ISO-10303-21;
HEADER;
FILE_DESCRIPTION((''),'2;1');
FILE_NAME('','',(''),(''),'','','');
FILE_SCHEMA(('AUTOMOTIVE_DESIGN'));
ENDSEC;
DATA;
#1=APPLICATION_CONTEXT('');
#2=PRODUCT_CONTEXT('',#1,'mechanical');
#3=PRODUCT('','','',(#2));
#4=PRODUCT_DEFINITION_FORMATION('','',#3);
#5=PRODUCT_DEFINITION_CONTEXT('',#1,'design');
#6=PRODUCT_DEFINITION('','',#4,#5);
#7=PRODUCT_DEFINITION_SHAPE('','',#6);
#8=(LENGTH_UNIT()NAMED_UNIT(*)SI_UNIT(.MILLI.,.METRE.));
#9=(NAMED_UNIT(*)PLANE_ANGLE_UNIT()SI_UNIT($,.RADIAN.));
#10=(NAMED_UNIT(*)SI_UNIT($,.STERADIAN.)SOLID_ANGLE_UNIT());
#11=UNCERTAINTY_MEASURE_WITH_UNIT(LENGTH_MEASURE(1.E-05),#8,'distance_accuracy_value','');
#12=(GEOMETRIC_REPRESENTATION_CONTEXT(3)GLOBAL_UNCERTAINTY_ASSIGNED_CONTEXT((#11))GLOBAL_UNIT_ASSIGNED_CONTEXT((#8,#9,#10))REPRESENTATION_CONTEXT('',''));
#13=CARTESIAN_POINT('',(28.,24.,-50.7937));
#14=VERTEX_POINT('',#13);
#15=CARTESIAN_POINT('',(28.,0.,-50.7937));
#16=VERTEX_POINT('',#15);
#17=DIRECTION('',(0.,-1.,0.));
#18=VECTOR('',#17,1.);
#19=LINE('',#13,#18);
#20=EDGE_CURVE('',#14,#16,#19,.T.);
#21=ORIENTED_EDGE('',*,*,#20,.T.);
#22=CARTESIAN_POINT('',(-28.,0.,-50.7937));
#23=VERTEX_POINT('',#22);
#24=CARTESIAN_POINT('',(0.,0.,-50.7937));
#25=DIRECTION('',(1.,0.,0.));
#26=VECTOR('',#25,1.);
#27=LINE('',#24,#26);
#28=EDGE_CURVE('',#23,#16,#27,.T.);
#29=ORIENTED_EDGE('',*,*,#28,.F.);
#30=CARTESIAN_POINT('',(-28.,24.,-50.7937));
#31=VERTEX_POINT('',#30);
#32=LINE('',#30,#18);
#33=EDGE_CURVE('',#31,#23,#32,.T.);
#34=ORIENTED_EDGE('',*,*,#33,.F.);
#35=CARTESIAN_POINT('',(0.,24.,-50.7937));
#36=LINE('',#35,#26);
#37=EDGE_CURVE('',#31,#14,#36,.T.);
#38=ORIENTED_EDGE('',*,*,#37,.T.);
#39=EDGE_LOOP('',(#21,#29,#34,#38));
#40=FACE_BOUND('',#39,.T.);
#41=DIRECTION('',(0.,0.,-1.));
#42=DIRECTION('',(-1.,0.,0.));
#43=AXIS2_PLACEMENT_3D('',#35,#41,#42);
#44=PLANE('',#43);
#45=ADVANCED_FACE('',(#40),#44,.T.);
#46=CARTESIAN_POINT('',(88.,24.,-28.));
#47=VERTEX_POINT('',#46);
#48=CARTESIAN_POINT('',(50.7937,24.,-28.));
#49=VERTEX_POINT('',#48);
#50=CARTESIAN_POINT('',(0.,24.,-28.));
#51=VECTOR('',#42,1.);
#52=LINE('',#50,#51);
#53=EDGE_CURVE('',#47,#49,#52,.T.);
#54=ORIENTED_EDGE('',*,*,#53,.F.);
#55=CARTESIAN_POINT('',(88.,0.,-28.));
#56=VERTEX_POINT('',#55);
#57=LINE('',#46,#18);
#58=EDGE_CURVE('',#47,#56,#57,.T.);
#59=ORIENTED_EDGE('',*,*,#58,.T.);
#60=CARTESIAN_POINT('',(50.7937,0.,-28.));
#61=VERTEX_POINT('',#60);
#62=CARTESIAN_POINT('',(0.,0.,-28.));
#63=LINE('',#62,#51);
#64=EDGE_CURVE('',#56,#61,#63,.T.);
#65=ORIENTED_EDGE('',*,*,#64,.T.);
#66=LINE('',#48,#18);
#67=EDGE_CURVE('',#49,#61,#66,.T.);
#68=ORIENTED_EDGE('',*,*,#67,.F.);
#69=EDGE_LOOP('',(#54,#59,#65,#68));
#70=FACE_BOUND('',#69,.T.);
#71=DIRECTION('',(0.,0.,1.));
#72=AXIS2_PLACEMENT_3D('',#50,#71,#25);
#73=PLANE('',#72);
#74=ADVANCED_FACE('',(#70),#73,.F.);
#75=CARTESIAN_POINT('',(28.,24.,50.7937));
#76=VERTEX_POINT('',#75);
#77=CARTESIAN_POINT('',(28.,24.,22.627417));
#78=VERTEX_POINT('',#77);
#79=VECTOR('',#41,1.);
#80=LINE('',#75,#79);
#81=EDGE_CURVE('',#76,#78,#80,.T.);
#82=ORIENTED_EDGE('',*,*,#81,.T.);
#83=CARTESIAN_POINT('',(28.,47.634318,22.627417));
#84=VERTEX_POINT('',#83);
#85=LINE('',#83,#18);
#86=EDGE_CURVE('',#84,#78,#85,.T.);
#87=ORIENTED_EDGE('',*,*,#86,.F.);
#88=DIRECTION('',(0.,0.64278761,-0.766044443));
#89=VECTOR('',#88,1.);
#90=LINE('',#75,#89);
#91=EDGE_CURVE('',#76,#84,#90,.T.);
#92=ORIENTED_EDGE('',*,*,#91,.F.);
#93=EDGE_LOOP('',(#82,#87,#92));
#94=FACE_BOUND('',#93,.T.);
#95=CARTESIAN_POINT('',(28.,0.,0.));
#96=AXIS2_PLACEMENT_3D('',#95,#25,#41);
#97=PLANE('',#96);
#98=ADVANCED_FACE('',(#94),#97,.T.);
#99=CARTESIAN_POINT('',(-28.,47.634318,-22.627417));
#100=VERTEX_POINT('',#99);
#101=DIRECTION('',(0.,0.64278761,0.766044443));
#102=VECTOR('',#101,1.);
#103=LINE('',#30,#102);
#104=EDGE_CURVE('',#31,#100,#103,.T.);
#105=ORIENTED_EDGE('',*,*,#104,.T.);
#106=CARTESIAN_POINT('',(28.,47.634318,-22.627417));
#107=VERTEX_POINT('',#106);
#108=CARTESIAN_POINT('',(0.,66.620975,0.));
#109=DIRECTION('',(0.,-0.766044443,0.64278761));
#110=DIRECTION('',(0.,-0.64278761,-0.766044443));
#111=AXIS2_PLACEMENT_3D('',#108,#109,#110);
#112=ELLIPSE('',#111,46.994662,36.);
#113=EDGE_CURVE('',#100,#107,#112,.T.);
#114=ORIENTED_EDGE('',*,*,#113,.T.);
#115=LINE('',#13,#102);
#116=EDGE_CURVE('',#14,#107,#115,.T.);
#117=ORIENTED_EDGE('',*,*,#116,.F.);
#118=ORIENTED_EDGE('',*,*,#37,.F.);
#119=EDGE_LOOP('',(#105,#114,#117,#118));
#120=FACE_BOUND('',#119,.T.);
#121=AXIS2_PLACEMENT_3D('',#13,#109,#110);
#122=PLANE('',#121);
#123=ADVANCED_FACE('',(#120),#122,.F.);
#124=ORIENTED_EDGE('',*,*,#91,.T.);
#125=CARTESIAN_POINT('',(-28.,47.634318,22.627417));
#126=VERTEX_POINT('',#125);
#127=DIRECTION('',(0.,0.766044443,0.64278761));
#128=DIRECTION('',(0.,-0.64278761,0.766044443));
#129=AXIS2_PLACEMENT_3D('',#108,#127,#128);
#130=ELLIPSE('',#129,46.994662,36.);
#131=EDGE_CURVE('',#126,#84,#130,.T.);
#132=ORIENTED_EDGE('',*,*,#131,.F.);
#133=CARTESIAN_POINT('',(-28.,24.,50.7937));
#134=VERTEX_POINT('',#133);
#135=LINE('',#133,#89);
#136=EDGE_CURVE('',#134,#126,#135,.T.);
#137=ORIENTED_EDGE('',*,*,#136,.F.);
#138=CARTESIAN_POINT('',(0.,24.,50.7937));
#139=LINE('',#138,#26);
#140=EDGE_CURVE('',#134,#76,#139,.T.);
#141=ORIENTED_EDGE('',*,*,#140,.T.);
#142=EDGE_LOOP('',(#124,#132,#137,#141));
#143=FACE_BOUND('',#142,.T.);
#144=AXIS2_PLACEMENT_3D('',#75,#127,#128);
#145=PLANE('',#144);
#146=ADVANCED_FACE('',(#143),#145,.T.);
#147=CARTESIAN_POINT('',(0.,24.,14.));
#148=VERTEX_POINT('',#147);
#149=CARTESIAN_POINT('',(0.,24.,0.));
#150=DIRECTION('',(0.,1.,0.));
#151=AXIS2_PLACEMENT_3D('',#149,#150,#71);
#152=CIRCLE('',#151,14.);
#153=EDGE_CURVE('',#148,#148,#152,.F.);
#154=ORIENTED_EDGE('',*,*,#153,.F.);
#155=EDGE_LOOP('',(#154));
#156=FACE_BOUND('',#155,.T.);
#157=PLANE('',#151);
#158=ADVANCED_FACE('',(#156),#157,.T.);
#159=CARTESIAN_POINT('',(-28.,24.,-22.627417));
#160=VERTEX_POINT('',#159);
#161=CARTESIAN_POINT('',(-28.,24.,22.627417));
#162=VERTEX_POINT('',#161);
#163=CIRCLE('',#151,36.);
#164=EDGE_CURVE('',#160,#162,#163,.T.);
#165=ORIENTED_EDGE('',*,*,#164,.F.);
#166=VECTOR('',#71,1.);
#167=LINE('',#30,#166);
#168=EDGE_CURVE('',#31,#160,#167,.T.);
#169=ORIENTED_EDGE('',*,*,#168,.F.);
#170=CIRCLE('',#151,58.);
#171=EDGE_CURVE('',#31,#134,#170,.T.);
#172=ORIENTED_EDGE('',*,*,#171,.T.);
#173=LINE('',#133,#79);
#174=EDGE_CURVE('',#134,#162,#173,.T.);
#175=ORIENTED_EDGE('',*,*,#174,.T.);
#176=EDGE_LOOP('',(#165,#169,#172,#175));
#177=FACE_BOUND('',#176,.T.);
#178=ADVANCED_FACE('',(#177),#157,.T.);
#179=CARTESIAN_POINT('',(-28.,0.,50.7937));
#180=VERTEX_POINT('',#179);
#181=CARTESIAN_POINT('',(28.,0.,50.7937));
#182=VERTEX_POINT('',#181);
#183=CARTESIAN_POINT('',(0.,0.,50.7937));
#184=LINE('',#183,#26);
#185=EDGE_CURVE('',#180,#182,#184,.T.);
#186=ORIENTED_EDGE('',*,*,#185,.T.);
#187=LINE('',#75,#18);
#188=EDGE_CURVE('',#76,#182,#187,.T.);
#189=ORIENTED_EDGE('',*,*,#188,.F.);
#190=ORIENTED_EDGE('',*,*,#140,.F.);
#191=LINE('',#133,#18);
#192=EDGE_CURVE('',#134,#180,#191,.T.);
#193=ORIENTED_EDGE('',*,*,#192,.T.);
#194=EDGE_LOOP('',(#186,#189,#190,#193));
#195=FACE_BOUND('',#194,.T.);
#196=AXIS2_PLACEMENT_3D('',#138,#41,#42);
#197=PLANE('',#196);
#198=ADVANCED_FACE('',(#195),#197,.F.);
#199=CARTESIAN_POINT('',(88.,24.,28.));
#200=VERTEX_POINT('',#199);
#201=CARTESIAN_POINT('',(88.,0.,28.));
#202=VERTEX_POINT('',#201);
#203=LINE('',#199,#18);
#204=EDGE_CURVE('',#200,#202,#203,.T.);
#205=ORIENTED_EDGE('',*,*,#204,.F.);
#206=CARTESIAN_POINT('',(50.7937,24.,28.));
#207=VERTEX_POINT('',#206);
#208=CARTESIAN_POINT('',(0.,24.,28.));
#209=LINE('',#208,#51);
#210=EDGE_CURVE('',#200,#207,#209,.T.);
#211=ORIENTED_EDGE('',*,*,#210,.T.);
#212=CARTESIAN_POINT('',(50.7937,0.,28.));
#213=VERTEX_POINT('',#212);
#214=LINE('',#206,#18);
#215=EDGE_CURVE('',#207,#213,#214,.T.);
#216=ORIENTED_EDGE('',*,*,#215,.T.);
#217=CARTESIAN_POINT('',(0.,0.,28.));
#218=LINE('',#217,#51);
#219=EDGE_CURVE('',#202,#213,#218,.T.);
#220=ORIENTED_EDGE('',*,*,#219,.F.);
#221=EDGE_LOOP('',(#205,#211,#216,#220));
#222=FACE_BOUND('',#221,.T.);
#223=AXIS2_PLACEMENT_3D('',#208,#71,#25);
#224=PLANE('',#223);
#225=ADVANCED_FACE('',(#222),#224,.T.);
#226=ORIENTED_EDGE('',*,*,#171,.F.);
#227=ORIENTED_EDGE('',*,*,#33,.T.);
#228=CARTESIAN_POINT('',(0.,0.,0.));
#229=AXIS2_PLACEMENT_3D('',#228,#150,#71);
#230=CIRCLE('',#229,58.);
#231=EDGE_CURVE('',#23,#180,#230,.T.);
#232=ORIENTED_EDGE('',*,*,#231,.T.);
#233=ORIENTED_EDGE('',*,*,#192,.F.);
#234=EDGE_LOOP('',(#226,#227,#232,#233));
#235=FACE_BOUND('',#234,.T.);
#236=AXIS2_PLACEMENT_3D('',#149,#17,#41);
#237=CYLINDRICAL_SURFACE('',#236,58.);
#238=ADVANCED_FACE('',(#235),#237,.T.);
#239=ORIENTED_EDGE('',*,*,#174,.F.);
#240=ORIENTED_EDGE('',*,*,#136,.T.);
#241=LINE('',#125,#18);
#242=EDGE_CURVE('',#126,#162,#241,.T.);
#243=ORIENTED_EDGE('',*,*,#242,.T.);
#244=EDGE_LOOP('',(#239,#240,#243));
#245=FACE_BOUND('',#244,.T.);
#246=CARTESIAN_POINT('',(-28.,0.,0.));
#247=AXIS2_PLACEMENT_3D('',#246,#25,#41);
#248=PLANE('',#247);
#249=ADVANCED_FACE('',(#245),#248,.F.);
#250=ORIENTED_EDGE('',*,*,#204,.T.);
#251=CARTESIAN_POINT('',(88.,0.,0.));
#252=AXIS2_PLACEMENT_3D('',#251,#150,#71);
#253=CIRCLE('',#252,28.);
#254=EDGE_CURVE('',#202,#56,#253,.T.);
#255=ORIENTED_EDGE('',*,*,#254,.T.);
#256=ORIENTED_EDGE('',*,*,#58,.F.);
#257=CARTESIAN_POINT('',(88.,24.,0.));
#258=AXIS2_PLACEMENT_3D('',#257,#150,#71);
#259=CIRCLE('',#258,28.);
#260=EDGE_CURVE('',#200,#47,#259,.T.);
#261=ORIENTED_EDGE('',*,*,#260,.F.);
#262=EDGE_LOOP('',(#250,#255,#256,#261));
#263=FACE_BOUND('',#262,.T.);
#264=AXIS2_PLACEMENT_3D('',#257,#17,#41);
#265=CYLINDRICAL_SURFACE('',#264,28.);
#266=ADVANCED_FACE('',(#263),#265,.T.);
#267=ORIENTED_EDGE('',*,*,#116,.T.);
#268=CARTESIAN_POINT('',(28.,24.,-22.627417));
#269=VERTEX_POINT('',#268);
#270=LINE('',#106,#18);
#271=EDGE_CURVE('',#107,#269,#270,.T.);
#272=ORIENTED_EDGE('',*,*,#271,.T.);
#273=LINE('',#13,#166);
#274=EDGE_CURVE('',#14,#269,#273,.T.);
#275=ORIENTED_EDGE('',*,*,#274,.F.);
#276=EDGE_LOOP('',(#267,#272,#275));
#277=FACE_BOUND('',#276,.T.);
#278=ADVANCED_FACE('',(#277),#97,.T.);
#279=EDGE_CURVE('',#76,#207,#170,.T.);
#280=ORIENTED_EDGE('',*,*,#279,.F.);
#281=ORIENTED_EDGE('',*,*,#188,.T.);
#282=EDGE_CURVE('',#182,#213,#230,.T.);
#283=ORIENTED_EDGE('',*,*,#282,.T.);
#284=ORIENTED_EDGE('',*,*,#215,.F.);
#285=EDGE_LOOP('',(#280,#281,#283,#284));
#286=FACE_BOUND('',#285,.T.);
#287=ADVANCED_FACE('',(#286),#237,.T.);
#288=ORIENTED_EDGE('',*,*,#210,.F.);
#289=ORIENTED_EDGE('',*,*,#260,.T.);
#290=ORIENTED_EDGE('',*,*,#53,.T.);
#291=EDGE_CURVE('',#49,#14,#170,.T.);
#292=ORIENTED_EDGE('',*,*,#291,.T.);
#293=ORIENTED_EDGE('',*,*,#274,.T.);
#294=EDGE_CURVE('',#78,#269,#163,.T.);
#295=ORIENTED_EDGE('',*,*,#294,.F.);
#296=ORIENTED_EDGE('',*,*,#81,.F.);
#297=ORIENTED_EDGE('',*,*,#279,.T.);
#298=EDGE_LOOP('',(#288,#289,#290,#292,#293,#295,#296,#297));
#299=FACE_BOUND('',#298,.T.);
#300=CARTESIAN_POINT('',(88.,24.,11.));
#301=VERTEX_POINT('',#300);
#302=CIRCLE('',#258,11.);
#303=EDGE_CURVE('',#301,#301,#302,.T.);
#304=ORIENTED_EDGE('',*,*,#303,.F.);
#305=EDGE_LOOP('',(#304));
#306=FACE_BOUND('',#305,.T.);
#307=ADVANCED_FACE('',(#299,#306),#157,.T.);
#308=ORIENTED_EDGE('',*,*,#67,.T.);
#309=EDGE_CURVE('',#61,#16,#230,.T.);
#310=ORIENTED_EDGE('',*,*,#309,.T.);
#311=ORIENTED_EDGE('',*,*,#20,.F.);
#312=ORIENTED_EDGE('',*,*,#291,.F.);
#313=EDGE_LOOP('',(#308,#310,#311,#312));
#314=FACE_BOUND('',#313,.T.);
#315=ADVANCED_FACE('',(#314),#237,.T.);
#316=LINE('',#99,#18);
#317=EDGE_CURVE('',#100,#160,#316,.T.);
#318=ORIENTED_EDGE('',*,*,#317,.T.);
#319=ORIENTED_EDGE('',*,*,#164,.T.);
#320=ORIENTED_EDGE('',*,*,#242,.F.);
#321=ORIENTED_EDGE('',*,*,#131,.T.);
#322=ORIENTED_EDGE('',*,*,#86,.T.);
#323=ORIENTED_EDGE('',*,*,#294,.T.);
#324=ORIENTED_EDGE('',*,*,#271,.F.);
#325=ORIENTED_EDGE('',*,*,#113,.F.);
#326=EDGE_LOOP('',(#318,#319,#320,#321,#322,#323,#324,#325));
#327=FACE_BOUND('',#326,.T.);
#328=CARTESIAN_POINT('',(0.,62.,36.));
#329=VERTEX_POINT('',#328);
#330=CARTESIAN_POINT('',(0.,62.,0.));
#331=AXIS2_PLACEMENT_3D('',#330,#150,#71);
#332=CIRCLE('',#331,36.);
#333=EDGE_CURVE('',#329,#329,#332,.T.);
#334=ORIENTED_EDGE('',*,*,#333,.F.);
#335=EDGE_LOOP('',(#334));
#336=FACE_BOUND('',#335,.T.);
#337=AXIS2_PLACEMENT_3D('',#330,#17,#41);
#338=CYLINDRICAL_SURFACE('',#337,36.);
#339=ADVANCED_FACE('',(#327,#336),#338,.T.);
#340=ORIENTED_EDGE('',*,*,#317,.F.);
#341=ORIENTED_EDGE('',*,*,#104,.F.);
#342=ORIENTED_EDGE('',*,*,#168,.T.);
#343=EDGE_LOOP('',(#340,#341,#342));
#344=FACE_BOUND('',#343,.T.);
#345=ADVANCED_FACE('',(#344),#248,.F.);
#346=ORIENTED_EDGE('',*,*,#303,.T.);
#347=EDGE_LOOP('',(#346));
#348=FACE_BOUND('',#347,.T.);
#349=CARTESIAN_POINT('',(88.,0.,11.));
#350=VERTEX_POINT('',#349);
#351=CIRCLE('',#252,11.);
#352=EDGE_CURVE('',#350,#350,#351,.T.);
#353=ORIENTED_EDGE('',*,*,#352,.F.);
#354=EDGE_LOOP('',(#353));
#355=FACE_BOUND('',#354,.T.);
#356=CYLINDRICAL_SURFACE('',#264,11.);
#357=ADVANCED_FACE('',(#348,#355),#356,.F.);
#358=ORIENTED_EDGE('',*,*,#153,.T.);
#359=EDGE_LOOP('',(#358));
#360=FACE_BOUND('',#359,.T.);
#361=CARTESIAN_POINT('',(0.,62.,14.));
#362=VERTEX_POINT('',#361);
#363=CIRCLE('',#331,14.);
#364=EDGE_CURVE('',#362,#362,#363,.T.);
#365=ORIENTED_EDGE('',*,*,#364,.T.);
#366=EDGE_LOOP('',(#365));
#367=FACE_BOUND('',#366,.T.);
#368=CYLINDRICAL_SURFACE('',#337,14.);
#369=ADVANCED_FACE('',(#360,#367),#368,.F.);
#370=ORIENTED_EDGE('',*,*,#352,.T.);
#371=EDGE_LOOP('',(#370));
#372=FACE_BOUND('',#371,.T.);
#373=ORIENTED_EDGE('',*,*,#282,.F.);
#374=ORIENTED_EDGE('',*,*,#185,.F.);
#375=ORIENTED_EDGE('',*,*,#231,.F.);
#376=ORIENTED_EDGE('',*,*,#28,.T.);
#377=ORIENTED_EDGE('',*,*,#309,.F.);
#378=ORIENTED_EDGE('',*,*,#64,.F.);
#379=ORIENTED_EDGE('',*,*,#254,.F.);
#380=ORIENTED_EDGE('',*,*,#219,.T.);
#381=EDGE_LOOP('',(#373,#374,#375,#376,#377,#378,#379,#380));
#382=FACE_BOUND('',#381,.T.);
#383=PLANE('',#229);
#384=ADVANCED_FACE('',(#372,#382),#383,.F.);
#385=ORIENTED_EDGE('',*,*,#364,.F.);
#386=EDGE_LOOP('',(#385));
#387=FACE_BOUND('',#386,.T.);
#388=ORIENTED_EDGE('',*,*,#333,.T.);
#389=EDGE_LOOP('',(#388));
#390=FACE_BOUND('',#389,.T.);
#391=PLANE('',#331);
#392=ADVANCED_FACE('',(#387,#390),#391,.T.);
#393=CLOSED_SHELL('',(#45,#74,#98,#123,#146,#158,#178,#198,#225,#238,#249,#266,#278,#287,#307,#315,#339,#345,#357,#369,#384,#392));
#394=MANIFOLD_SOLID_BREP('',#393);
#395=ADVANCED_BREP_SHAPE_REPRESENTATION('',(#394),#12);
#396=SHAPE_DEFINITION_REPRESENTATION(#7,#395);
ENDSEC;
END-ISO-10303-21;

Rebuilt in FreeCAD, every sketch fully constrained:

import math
import FreeCAD as App
import Part
import Sketcher
from FreeCAD import Vector
Q = App.Units.Quantity


def add_polygon(sketch, points):
    """Adds a closed chain of lines whose ends are joined by coincident constraints."""
    first, n = sketch.GeometryCount, len(points)
    for a, b in zip(points, points[1:] + points[:1]):
        sketch.addGeometry(Part.LineSegment(App.Vector(*a, 0), App.Vector(*b, 0)), False)
    for i in range(n):
        sketch.addConstraint(Sketcher.Constraint("Coincident", first + i, 2, first + (i + 1) % n, 1))

doc = App.newDocument("Part")
body = doc.addObject("PartDesign::Body", "Body")

# Sketch on XZ plane
sketch1 = doc.addObject("Sketcher::SketchObject", "Sketch")
body.addObject(sketch1)
sketch1.AttachmentSupport = (doc.XZ_Plane, [""])
sketch1.MapMode = "FlatFace"
sketch1.addGeometry([
    Part.LineSegment(Vector(-28, 51, 0), Vector(28, 51, 0)),  # 0
    Part.ArcOfCircle(Part.Circle(Vector(0, 0, 0), Vector(0, 0, 1), 58), math.radians(29), math.radians(61)),  # 1
    Part.LineSegment(Vector(51, 28, 0), Vector(88, 28, 0)),  # 2
    Part.ArcOfCircle(Part.Circle(Vector(88, 0, 0), Vector(0, 0, 1), 28), math.radians(-90), math.radians(90)),  # 3
    Part.LineSegment(Vector(88, -28, 0), Vector(51, -28, 0)),  # 4
    Part.ArcOfCircle(Part.Circle(Vector(0, 0, 0), Vector(0, 0, 1), 58), math.radians(-61), math.radians(-29)),  # 5
    Part.LineSegment(Vector(28, -51, 0), Vector(-28, -51, 0)),  # 6
    Part.ArcOfCircle(Part.Circle(Vector(0, 0, 0), Vector(0, 0, 1), 58), math.radians(119), math.radians(241)),  # 7
    Part.Circle(Vector(88, 0, 0), Vector(0, 0, 1), 11),  # 8
], False)
sketch1.addConstraint([
    Sketcher.Constraint("Coincident", 0, 2, 1, 2),
    Sketcher.Constraint("Coincident", 1, 1, 2, 1),
    Sketcher.Constraint("Tangent", 2, 2, 3, 2),
    Sketcher.Constraint("Tangent", 3, 1, 4, 1),
    Sketcher.Constraint("Coincident", 4, 2, 5, 2),
    Sketcher.Constraint("Coincident", 5, 1, 6, 1),
    Sketcher.Constraint("Coincident", 6, 2, 7, 2),
    Sketcher.Constraint("Coincident", 7, 1, 0, 1),
    Sketcher.Constraint("Horizontal", 0),
    Sketcher.Constraint("Horizontal", 2),
    Sketcher.Constraint("Horizontal", 4),
    Sketcher.Constraint("Horizontal", 6),
    Sketcher.Constraint("Coincident", 1, 3, -1, 1),
    Sketcher.Constraint("Coincident", 5, 3, -1, 1),
    Sketcher.Constraint("Coincident", 7, 3, -1, 1),
    Sketcher.Constraint("Coincident", 8, 3, 3, 3),
    Sketcher.Constraint("Equal", 1, 5),
    Sketcher.Constraint("Equal", 5, 7),
    Sketcher.Constraint("PointOnObject", 3, 3, -1),
    Sketcher.Constraint("Vertical", 0, 2, 5, 1),
    Sketcher.Constraint("Diameter", 8, 22.0),
    Sketcher.Constraint("Radius", 1, 58.0),
    Sketcher.Constraint("Radius", 3, 28.0),
    Sketcher.Constraint("DistanceX", 0, 1, 0, 2, 56.0),
    Sketcher.Constraint("DistanceX", -1, 1, 3, 3, 88.0),
])
pad1 = doc.addObject("PartDesign::Pad", "Pad")
body.addObject(pad1)
pad1.Profile = sketch1
pad1.Length = 24
pad1.Reversed = True

# Sketch on XZ plane
sketch2 = doc.addObject("Sketcher::SketchObject", "Sketch001")
body.addObject(sketch2)
sketch2.AttachmentSupport = (doc.XZ_Plane, [""])
sketch2.MapMode = "FlatFace"
sketch2.AttachmentOffset = App.Placement(Vector(0, 0, -24), App.Rotation())
sketch2.addGeometry([
    Part.Circle(Vector(0, 0, 0), Vector(0, 0, 1), 36),
    Part.Circle(Vector(0, 0, 0), Vector(0, 0, 1), 14),
], False)
sketch2.addConstraint([
    Sketcher.Constraint("Coincident", 0, 3, -1, 1),
    Sketcher.Constraint("Coincident", 1, 3, -1, 1),
    Sketcher.Constraint("Diameter", 0, 72.0),
    Sketcher.Constraint("Diameter", 1, 28.0),
])
pad2 = doc.addObject("PartDesign::Pad", "Pad001")
body.addObject(pad2)
pad2.Profile = sketch2
pad2.Length = 38
pad2.Reversed = True

# Sketch on YZ plane
sketch3 = doc.addObject("Sketcher::SketchObject", "Sketch002")
body.addObject(sketch3)
sketch3.AttachmentSupport = (doc.YZ_Plane, [""])
sketch3.MapMode = "FlatFace"
sketch3.AttachmentOffset = App.Placement(Vector(0, 0, 28), App.Rotation())
add_polygon(sketch3, [(48, 23), (24, 51), (24, 23)])  # lines 0-2
add_polygon(sketch3, [(24, -51), (48, -23), (24, -23)])  # lines 3-5
sketch3.addConstraint([
    Sketcher.Constraint("Vertical", 1),
    Sketcher.Constraint("Horizontal", 2),
    Sketcher.Constraint("Horizontal", 4),
    Sketcher.Constraint("Vertical", 5),
    Sketcher.Constraint("Symmetric", 2, 2, 3, 2, -1),
    Sketcher.Constraint("Symmetric", 0, 2, 5, 2, -1),
    Sketcher.Constraint("Angle", 0, Q("130 deg")),
    Sketcher.Constraint("DistanceX", -1, 1, 0, 2, 24.0),
    Sketcher.Constraint("DistanceX", 2, 1, 2, 2, 23.634318),
    Sketcher.Constraint("DistanceY", -1, 1, 0, 2, 50.7937),
])
pad3 = doc.addObject("PartDesign::Pad", "Pad002")
body.addObject(pad3)
pad3.Profile = sketch3
pad3.Length = 56
pad3.Reversed = True

doc.recompute()
